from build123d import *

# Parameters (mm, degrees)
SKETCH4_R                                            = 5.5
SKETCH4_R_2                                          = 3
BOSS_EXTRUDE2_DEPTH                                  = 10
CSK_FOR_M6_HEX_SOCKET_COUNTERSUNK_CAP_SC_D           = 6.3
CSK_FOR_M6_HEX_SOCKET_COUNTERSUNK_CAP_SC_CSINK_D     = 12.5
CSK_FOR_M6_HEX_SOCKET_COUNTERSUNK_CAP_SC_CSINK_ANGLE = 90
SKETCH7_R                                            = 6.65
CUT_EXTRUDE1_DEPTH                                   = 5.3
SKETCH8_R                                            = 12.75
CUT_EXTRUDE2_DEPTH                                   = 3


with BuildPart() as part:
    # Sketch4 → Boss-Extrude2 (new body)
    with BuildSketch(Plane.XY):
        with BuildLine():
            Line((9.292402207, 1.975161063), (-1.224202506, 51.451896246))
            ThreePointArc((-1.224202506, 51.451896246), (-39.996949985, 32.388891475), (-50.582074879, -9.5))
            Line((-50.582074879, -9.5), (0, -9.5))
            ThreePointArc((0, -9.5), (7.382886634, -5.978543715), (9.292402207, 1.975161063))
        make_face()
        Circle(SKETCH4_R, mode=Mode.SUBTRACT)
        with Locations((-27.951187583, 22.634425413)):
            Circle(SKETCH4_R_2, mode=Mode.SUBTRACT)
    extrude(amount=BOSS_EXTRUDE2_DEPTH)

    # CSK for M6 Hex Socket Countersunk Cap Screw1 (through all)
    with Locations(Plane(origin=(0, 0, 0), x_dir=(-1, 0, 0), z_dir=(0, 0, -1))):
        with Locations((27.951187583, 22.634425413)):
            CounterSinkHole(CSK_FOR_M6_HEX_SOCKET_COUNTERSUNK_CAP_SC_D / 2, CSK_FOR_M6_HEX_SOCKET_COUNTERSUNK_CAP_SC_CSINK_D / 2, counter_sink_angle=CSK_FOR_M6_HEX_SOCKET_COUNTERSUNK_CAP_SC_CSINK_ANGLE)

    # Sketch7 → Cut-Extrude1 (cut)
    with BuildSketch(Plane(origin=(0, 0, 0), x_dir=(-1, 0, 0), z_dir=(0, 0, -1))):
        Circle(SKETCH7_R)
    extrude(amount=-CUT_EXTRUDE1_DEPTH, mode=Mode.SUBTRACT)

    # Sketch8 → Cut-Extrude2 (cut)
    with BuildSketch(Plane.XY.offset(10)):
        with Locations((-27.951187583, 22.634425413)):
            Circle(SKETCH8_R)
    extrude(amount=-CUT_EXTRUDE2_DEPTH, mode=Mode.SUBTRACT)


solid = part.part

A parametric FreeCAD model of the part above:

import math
import FreeCAD as App
import Part
import Sketcher
from FreeCAD import Vector
Q = App.Units.Quantity

doc = App.newDocument("Part")
params = doc.addObject("Spreadsheet::Sheet", "Params")
for row, (alias, value) in enumerate([
    ("sketch1_diameter", "11 mm"),
    ("sketch1_diameter2", "6 mm"),
    ("sketch1_radius", "9.5 mm"),
    ("pad1_length", "10 mm"),
    ("sketch2_diameter", "6.3 mm"),
    ("hole_diameter", "6.3 mm"),
    ("hole_csink_diameter", "12.5 mm"),
    ("sketch3_diameter", "13.3 mm"),
    ("pocket1_length", "5.3 mm"),
    ("sketch4_diameter", "25.5 mm"),
    ("pocket2_length", "3 mm"),
], start=1):
    params.set(f"A{row}", alias)
    params.set(f"B{row}", "=" + value)
    params.setAlias(f"B{row}", alias)

body = doc.addObject("PartDesign::Body", "Body")

# Sketch on XY plane
sketch1 = body.newObject("Sketcher::SketchObject", "Sketch")
sketch1.AttachmentSupport = (doc.getObject("XY_Plane"), [""])
sketch1.MapMode = "FlatFace"
sketch1.addGeometry([
    Part.LineSegment(Vector(9.3, 2, 0), Vector(-1.2, 51.5, 0)),  # 0
    Part.ArcOfCircle(Part.Circle(Vector(0, 0, 0), Vector(0, 0, 1), 51.5), math.radians(91), math.radians(191)),  # 1
    Part.LineSegment(Vector(-50.6, -9.5, 0), Vector(0, -9.5, 0)),  # 2
    Part.ArcOfCircle(Part.Circle(Vector(0, 0, 0), Vector(0, 0, 1), 9.5), math.radians(-90), math.radians(12)),  # 3
    Part.Circle(Vector(0, 0, 0), Vector(0, 0, 1), 5.5),  # 4
    Part.Circle(Vector(-28, 22.6, 0), Vector(0, 0, 1), 3),  # 5
], False)
sketch1.addConstraint([
    Sketcher.Constraint("Coincident", 0, 2, 1, 1),
    Sketcher.Constraint("Coincident", 1, 2, 2, 1),
    Sketcher.Constraint("Tangent", 2, 2, 3, 1),
    Sketcher.Constraint("Tangent", 3, 2, 0, 1),
    Sketcher.Constraint("Horizontal", 2),
    Sketcher.Constraint("Coincident", 1, 3, -1, 1),
    Sketcher.Constraint("Coincident", 3, 3, -1, 1),
    Sketcher.Constraint("Coincident", 4, 3, -1, 1),
    Sketcher.Constraint("Diameter", 4, Q("11 mm")),
    Sketcher.Constraint("Diameter", 5, Q("6 mm")),
    Sketcher.Constraint("Radius", 3, Q("9.5 mm")),
    Sketcher.Constraint("Angle", 0, Q("102 deg")),
    Sketcher.Constraint("Radius", 1, Q("51.466458 mm")),
    Sketcher.Constraint("DistanceY", 5, 3, 0, 2, Q("28.817471 mm")),
    Sketcher.Constraint("DistanceX", 5, 3, 3, 2, Q("37.24359 mm")),
])
sketch1.setExpression("Constraints[8]", "Params.sketch1_diameter")
sketch1.setExpression("Constraints[9]", "Params.sketch1_diameter2")
sketch1.setExpression("Constraints[10]", "Params.sketch1_radius")
pad1 = body.newObject("PartDesign::Pad", "Pad")
pad1.Profile = sketch1
pad1.setExpression("Length", "Params.pad1_length")

# Sketch on XY plane
sketch2 = body.newObject("Sketcher::SketchObject", "Sketch001")
sketch2.AttachmentSupport = (doc.getObject("XY_Plane"), [""])
sketch2.MapMode = "FlatFace"
sketch2.addGeometry(Part.Circle(Vector(-28, 22.6, 0), Vector(0, 0, 1), 3.1), False)
sketch2.addConstraint([
    Sketcher.Constraint("Diameter", 0, Q("6.3 mm")),
    Sketcher.Constraint("DistanceX", 0, 3, -1, 1, Q("27.951188 mm")),
    Sketcher.Constraint("DistanceY", -1, 1, 0, 3, Q("22.634425 mm")),
])
sketch2.setExpression("Constraints[0]", "Params.sketch2_diameter")
doc.recompute()
hole = body.newObject("PartDesign::Hole", "Hole")
hole.Profile = sketch2
hole.ThreadType = "None"
hole.setExpression("Diameter", "Params.hole_diameter")
hole.DepthType = "ThroughAll"
hole.HoleCutType = "Countersink"
hole.setExpression("HoleCutDiameter", "Params.hole_csink_diameter")
hole.HoleCutCountersinkAngle = 90
hole.Reversed = True

# Sketch on XY plane
sketch3 = body.newObject("Sketcher::SketchObject", "Sketch002")
sketch3.AttachmentSupport = (doc.getObject("XY_Plane"), [""])
sketch3.MapMode = "FlatFace"
sketch3.addGeometry(Part.Circle(Vector(0, 0, 0), Vector(0, 0, 1), 7), False)
sketch3.addConstraint([
    Sketcher.Constraint("Coincident", 0, 3, -1, 1),
    Sketcher.Constraint("Diameter", 0, Q("13.3 mm")),
])
sketch3.setExpression("Constraints[1]", "Params.sketch3_diameter")
pocket1 = body.newObject("PartDesign::Pocket", "Pocket")
pocket1.Profile = sketch3
pocket1.setExpression("Length", "Params.pocket1_length")
pocket1.Reversed = True

# Sketch on XY plane
sketch4 = body.newObject("Sketcher::SketchObject", "Sketch003")
sketch4.AttachmentSupport = (doc.getObject("XY_Plane"), [""])
sketch4.MapMode = "FlatFace"
sketch4.AttachmentOffset = App.Placement(Vector(0, 0, 10), App.Rotation())
sketch4.addGeometry(Part.Circle(Vector(-28, 23, 0), Vector(0, 0, 1), 13), False)
sketch4.addConstraint([
    Sketcher.Constraint("Diameter", 0, Q("25.5 mm")),
    Sketcher.Constraint("DistanceX", 0, 3, -1, 1, Q("27.951188 mm")),
    Sketcher.Constraint("DistanceY", -1, 1, 0, 3, Q("22.634425 mm")),
])
sketch4.setExpression("Constraints[0]", "Params.sketch4_diameter")
pocket2 = body.newObject("PartDesign::Pocket", "Pocket001")
pocket2.Profile = sketch4
pocket2.setExpression("Length", "Params.pocket2_length")

doc.recompute()
